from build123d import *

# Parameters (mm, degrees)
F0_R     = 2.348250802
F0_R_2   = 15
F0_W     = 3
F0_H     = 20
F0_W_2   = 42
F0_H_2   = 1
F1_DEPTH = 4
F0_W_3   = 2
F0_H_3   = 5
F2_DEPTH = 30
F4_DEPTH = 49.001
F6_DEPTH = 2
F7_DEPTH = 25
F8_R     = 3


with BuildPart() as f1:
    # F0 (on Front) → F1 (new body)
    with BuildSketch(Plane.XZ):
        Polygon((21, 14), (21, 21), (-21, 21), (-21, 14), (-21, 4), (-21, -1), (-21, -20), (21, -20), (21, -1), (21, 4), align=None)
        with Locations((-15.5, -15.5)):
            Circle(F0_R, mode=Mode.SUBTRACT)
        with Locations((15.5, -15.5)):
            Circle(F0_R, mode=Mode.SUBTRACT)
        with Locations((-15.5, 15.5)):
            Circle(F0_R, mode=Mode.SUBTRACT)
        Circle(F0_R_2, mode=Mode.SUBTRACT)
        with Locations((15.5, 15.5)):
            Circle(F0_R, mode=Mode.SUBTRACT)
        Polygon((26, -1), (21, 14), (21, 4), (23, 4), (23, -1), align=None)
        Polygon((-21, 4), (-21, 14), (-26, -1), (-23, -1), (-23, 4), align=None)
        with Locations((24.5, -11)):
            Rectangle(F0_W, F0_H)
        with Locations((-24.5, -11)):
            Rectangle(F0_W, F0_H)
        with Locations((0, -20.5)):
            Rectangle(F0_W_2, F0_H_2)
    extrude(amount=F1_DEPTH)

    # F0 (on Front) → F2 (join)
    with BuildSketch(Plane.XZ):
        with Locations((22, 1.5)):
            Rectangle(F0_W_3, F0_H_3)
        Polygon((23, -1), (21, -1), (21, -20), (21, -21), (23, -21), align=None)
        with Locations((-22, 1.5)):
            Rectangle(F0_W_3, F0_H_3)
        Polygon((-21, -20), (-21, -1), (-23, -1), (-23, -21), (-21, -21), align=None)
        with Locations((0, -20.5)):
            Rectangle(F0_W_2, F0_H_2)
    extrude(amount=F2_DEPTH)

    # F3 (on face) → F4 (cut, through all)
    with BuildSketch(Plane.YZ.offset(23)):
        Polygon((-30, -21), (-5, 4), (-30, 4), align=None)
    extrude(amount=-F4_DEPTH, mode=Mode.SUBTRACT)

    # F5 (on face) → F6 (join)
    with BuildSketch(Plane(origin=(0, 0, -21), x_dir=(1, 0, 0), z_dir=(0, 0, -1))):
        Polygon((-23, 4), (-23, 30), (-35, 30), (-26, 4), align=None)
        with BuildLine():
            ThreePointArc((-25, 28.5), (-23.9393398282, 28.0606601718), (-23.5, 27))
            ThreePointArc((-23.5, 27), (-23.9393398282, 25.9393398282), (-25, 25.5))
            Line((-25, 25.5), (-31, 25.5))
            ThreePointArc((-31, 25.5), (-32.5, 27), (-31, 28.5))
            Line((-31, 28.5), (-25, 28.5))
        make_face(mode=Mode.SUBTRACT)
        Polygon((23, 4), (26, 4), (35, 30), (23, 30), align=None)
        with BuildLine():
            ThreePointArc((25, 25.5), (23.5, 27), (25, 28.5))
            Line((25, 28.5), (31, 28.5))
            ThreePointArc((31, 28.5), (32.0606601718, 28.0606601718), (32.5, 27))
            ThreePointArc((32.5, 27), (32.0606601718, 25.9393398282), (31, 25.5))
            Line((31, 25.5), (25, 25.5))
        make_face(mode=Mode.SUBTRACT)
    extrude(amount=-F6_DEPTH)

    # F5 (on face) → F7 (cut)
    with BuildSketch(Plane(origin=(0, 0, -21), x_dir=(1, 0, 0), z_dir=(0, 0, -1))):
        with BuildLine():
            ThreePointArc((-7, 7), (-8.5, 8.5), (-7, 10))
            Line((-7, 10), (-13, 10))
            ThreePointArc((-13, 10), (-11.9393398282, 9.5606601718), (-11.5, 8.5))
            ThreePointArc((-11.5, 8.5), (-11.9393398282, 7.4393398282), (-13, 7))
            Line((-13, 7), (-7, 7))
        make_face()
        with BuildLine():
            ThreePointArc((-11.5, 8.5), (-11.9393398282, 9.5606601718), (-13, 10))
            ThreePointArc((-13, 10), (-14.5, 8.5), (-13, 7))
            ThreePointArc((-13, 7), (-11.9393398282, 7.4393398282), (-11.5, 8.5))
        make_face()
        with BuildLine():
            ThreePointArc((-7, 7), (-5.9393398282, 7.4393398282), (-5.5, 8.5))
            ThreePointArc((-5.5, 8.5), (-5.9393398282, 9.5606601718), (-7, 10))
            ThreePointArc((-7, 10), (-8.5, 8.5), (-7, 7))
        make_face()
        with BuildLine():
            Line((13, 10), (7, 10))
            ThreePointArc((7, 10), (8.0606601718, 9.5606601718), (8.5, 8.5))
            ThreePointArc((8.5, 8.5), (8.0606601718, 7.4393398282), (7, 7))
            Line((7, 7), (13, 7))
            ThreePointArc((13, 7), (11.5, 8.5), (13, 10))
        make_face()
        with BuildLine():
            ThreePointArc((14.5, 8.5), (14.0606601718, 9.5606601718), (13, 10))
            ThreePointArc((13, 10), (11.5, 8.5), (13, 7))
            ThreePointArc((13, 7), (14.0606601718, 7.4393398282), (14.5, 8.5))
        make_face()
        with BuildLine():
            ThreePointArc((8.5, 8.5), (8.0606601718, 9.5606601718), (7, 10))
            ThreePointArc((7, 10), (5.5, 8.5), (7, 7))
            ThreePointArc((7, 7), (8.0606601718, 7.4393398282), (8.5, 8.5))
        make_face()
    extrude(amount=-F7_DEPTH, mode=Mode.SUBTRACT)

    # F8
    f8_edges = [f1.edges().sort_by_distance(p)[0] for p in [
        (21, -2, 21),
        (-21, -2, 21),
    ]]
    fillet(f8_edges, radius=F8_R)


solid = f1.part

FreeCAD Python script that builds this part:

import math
import FreeCAD as App
import Part
import Sketcher
Q = App.Units.Quantity


def edges_at(feature, points):
    """Names of the edges that pass closest to the given points."""
    edges = feature.Shape.Edges
    near = lambda p: min(range(len(edges)), key=lambda i: edges[i].distToShape(Part.Vertex(*p))[0])
    return sorted({f"Edge{near(p) + 1}" for p in points})


def add_polygon(sketch, points):
    """Adds a closed chain of lines whose ends are joined by coincident constraints."""
    first, n = sketch.GeometryCount, len(points)
    for a, b in zip(points, points[1:] + points[:1]):
        sketch.addGeometry(Part.LineSegment(App.Vector(*a, 0), App.Vector(*b, 0)), False)
    for i in range(n):
        sketch.addConstraint(Sketcher.Constraint("Coincident", first + i, 2, first + (i + 1) % n, 1))

doc = App.newDocument("Part")
body = doc.addObject("PartDesign::Body", "Body")

# Sketch on XZ plane
sketch1 = body.newObject("Sketcher::SketchObject", "Sketch")
sketch1.AttachmentSupport = (doc.getObject("XZ_Plane"), [""])
sketch1.MapMode = "FlatFace"
add_polygon(sketch1, [(21, 21), (-21, 21), (-21, 14), (-26, -1), (-26, -21), (-23, -21), (-23, 4), (-21, 4), (-21, -21), (21, -21), (21, 4), (23, 4), (23, -21), (26, -21), (26, -1), (21, 14)])  # lines 0-15
sketch1.addGeometry(Part.Circle(App.Vector(-15.5, -15.5, 0), App.Vector(0, 0, 1), 2.3), False)  # 16
sketch1.addGeometry(Part.Circle(App.Vector(15.5, -15.5, 0), App.Vector(0, 0, 1), 2.3), False)  # 17
sketch1.addGeometry(Part.Circle(App.Vector(-15.5, 15.5, 0), App.Vector(0, 0, 1), 2.3), False)  # 18
sketch1.addGeometry(Part.Circle(App.Vector(0, 0, 0), App.Vector(0, 0, 1), 15), False)  # 19
sketch1.addGeometry(Part.Circle(App.Vector(15.5, 15.5, 0), App.Vector(0, 0, 1), 2.3), False)  # 20
sketch1.addConstraint(Sketcher.Constraint("Horizontal", 0))
sketch1.addConstraint(Sketcher.Constraint("Vertical", 1))
sketch1.addConstraint(Sketcher.Constraint("Vertical", 3))
sketch1.addConstraint(Sketcher.Constraint("Horizontal", 4))
sketch1.addConstraint(Sketcher.Constraint("Vertical", 5))
sketch1.addConstraint(Sketcher.Constraint("Horizontal", 6))
sketch1.addConstraint(Sketcher.Constraint("Vertical", 7))
sketch1.addConstraint(Sketcher.Constraint("Horizontal", 8))
sketch1.addConstraint(Sketcher.Constraint("Vertical", 9))
sketch1.addConstraint(Sketcher.Constraint("Horizontal", 10))
sketch1.addConstraint(Sketcher.Constraint("Vertical", 11))
sketch1.addConstraint(Sketcher.Constraint("Horizontal", 12))
sketch1.addConstraint(Sketcher.Constraint("Vertical", 13))
sketch1.addConstraint(Sketcher.Constraint("Vertical", 15))
sketch1.addConstraint(Sketcher.Constraint("Coincident", 19, 3, -1, 1))
sketch1.addConstraint(Sketcher.Constraint("Equal", 16, 17))
sketch1.addConstraint(Sketcher.Constraint("Equal", 17, 18))
sketch1.addConstraint(Sketcher.Constraint("Equal", 18, 20))
sketch1.addConstraint(Sketcher.Constraint("Symmetric", 17, 3, 18, 3, -1, 1))
sketch1.addConstraint(Sketcher.Constraint("Symmetric", 16, 3, 20, 3, -1, 1))
sketch1.addConstraint(Sketcher.Constraint("Symmetric", 0, 2, 8, 2, -1, 1))
sketch1.addConstraint(Sketcher.Constraint("Symmetric", 16, 3, 17, 3, -2))
sketch1.addConstraint(Sketcher.Constraint("Symmetric", 6, 2, 9, 2, -2))
sketch1.addConstraint(Sketcher.Constraint("Symmetric", 4, 2, 11, 2, -2))
sketch1.addConstraint(Sketcher.Constraint("Symmetric", 2, 2, 13, 2, -2))
sketch1.addConstraint(Sketcher.Constraint("Symmetric", 1, 2, 14, 2, -2))
sketch1.addConstraint(Sketcher.Constraint("Horizontal", 4, 2, 7, 2))
sketch1.addConstraint(Sketcher.Constraint("Diameter", 19, Q("30 mm")))
sketch1.addConstraint(Sketcher.Constraint("DistanceX", 0, 2, 0, 1, Q("42 mm")))
sketch1.addConstraint(Sketcher.Constraint("DistanceX", 4, 1, 4, 2, Q("3 mm")))
sketch1.addConstraint(Sketcher.Constraint("DistanceX", 6, 1, 6, 2, Q("2 mm")))
sketch1.addConstraint(Sketcher.Constraint("DistanceY", 1, 2, 1, 1, Q("7 mm")))
sketch1.addConstraint(Sketcher.Constraint("DistanceY", 3, 2, 3, 1, Q("20 mm")))
sketch1.addConstraint(Sketcher.Constraint("DistanceY", 5, 1, 5, 2, Q("25 mm")))
sketch1.addConstraint(Sketcher.Constraint("DistanceY", -1, 1, 0, 2, Q("21 mm")))
sketch1.addConstraint(Sketcher.Constraint("DistanceX", 16, 3, 17, 3, Q("31 mm")))
sketch1.addConstraint(Sketcher.Constraint("DistanceY", 16, 3, 18, 3, Q("31 mm")))
sketch1.addConstraint(Sketcher.Constraint("Diameter", 16, Q("4.696502 mm")))
pad1 = body.newObject("PartDesign::Pad", "Pad")
pad1.Profile = sketch1
pad1.Length = 4

# Sketch on XZ plane
sketch2 = body.newObject("Sketcher::SketchObject", "Sketch001")
sketch2.AttachmentSupport = (doc.getObject("XZ_Plane"), [""])
sketch2.MapMode = "FlatFace"
add_polygon(sketch2, [(21, 4), (21, -20), (-21, -20), (-21, 4), (-23, 4), (-23, -21), (23, -21), (23, 4)])  # lines 0-7
sketch2.addConstraint(Sketcher.Constraint("Vertical", 0))
sketch2.addConstraint(Sketcher.Constraint("Horizontal", 1))
sketch2.addConstraint(Sketcher.Constraint("Vertical", 2))
sketch2.addConstraint(Sketcher.Constraint("Horizontal", 3))
sketch2.addConstraint(Sketcher.Constraint("Vertical", 4))
sketch2.addConstraint(Sketcher.Constraint("Horizontal", 5))
sketch2.addConstraint(Sketcher.Constraint("Vertical", 6))
sketch2.addConstraint(Sketcher.Constraint("Horizontal", 7))
sketch2.addConstraint(Sketcher.Constraint("Symmetric", 3, 2, 6, 2, -2))
sketch2.addConstraint(Sketcher.Constraint("Equal", 3, 7))
sketch2.addConstraint(Sketcher.Constraint("DistanceX", 1, 2, 1, 1, Q("42 mm")))
sketch2.addConstraint(Sketcher.Constraint("DistanceX", 3, 2, 3, 1, Q("2 mm")))
sketch2.addConstraint(Sketcher.Constraint("DistanceY", 0, 2, 0, 1, Q("24 mm")))
sketch2.addConstraint(Sketcher.Constraint("DistanceY", 4, 2, 4, 1, Q("25 mm")))
sketch2.addConstraint(Sketcher.Constraint("DistanceY", 0, 2, -1, 1, Q("20 mm")))
pad2 = body.newObject("PartDesign::Pad", "Pad001")
pad2.Profile = sketch2
pad2.Length = 30

# Sketch on YZ plane
sketch3 = body.newObject("Sketcher::SketchObject", "Sketch002")
sketch3.AttachmentSupport = (doc.getObject("YZ_Plane"), [""])
sketch3.MapMode = "FlatFace"
sketch3.AttachmentOffset = App.Placement(App.Vector(0, 0, 23), App.Rotation())
add_polygon(sketch3, [(-30, -21), (-5, 4), (-30, 4)])  # lines 0-2
sketch3.addConstraint(Sketcher.Constraint("Horizontal", 1))
sketch3.addConstraint(Sketcher.Constraint("Vertical", 2))
sketch3.addConstraint(Sketcher.Constraint("Equal", 1, 2))
sketch3.addConstraint(Sketcher.Constraint("DistanceX", 1, 2, 1, 1, Q("25 mm")))
sketch3.addConstraint(Sketcher.Constraint("DistanceX", 0, 2, -1, 1, Q("5 mm")))
sketch3.addConstraint(Sketcher.Constraint("DistanceY", -1, 1, 0, 2, Q("4 mm")))
pocket1 = body.newObject("PartDesign::Pocket", "Pocket")
pocket1.Profile = sketch3
pocket1.Type = "ThroughAll"

# Sketch on XY plane
sketch4 = body.newObject("Sketcher::SketchObject", "Sketch003")
sketch4.AttachmentSupport = (doc.getObject("XY_Plane"), [""])
sketch4.MapMode = "FlatFace"
sketch4.AttachmentOffset = App.Placement(App.Vector(0, 0, -21), App.Rotation())
add_polygon(sketch4, [(-23, -4), (-23, -30), (-35, -30), (-26, -4)])  # lines 0-3
sketch4.addGeometry(Part.LineSegment(App.Vector(-31, -28.5, 0), App.Vector(-25, -28.5, 0)), False)  # 4
sketch4.addGeometry(Part.ArcOfCircle(Part.Circle(App.Vector(-25, -27, 0), App.Vector(0, 0, 1), 1.5), math.radians(-90), math.radians(0)), False)  # 5
sketch4.addGeometry(Part.ArcOfCircle(Part.Circle(App.Vector(-25, -27, 0), App.Vector(0, 0, 1), 1.5), math.radians(0), math.radians(90)), False)  # 6
sketch4.addGeometry(Part.LineSegment(App.Vector(-25, -25.5, 0), App.Vector(-31, -25.5, 0)), False)  # 7
sketch4.addGeometry(Part.ArcOfCircle(Part.Circle(App.Vector(-31, -27, 0), App.Vector(0, 0, 1), 1.5), math.radians(90), math.radians(270)), False)  # 8
add_polygon(sketch4, [(23, -4), (26, -4), (35, -30), (23, -30)])  # lines 9-12
sketch4.addGeometry(Part.LineSegment(App.Vector(31, -25.5, 0), App.Vector(25, -25.5, 0)), False)  # 13
sketch4.addGeometry(Part.ArcOfCircle(Part.Circle(App.Vector(25, -27, 0), App.Vector(0, 0, 1), 1.5), math.radians(90), math.radians(270)), False)  # 14
sketch4.addGeometry(Part.LineSegment(App.Vector(25, -28.5, 0), App.Vector(31, -28.5, 0)), False)  # 15
sketch4.addGeometry(Part.ArcOfCircle(Part.Circle(App.Vector(31, -27, 0), App.Vector(0, 0, 1), 1.5), math.radians(-90), math.radians(0)), False)  # 16
sketch4.addGeometry(Part.ArcOfCircle(Part.Circle(App.Vector(31, -27, 0), App.Vector(0, 0, 1), 1.5), math.radians(0), math.radians(90)), False)  # 17
sketch4.addConstraint(Sketcher.Constraint("Tangent", 4, 2, 5, 1))
sketch4.addConstraint(Sketcher.Constraint("Tangent", 5, 2, 6, 1))
sketch4.addConstraint(Sketcher.Constraint("Tangent", 6, 2, 7, 1))
sketch4.addConstraint(Sketcher.Constraint("Tangent", 7, 2, 8, 1))
sketch4.addConstraint(Sketcher.Constraint("Tangent", 8, 2, 4, 1))
sketch4.addConstraint(Sketcher.Constraint("Tangent", 13, 2, 14, 1))
sketch4.addConstraint(Sketcher.Constraint("Tangent", 14, 2, 15, 1))
sketch4.addConstraint(Sketcher.Constraint("Tangent", 15, 2, 16, 1))
sketch4.addConstraint(Sketcher.Constraint("Tangent", 16, 2, 17, 1))
sketch4.addConstraint(Sketcher.Constraint("Tangent", 17, 2, 13, 1))
sketch4.addConstraint(Sketcher.Constraint("Vertical", 0))
sketch4.addConstraint(Sketcher.Constraint("Horizontal", 1))
sketch4.addConstraint(Sketcher.Constraint("Horizontal", 3))
sketch4.addConstraint(Sketcher.Constraint("Horizontal", 4))
sketch4.addConstraint(Sketcher.Constraint("Horizontal", 7))
sketch4.addConstraint(Sketcher.Constraint("Horizontal", 9))
sketch4.addConstraint(Sketcher.Constraint("Horizontal", 11))
sketch4.addConstraint(Sketcher.Constraint("Vertical", 12))
sketch4.addConstraint(Sketcher.Constraint("Horizontal", 13))
sketch4.addConstraint(Sketcher.Constraint("Horizontal", 15))
sketch4.addConstraint(Sketcher.Constraint("Equal", 5, 6))
sketch4.addConstraint(Sketcher.Constraint("Equal", 8, 14))
sketch4.addConstraint(Sketcher.Constraint("Equal", 14, 16))
sketch4.addConstraint(Sketcher.Constraint("Symmetric", 5, 3, 14, 3, -2))
sketch4.addConstraint(Sketcher.Constraint("Symmetric", 2, 2, 9, 2, -2))
sketch4.addConstraint(Sketcher.Constraint("Symmetric", 1, 2, 10, 2, -2))
sketch4.addConstraint(Sketcher.Constraint("Horizontal", 17, 3, 5, 2))
sketch4.addConstraint(Sketcher.Constraint("Horizontal", 5, 2, 16, 2))
sketch4.addConstraint(Sketcher.Constraint("Equal", 3, 9))
sketch4.addConstraint(Sketcher.Constraint("Equal", 7, 13))
sketch4.addConstraint(Sketcher.Constraint("Radius", 5, Q("1.5 mm")))
sketch4.addConstraint(Sketcher.Constraint("DistanceX", 1, 2, 1, 1, Q("12 mm")))
sketch4.addConstraint(Sketcher.Constraint("DistanceX", 3, 1, 3, 2, Q("3 mm")))
sketch4.addConstraint(Sketcher.Constraint("DistanceX", 4, 1, 4, 2, Q("6 mm")))
sketch4.addConstraint(Sketcher.Constraint("DistanceY", 0, 2, 0, 1, Q("26 mm")))
sketch4.addConstraint(Sketcher.Constraint("DistanceX", 5, 3, -1, 1, Q("25 mm")))
sketch4.addConstraint(Sketcher.Constraint("DistanceY", 5, 3, -1, 1, Q("27 mm")))
sketch4.addConstraint(Sketcher.Constraint("DistanceX", 0, 2, -1, 1, Q("23 mm")))
sketch4.addConstraint(Sketcher.Constraint("DistanceY", 0, 2, -1, 1, Q("30 mm")))
pad3 = body.newObject("PartDesign::Pad", "Pad002")
pad3.Profile = sketch4
pad3.Length = 2

# Sketch on XY plane
sketch5 = body.newObject("Sketcher::SketchObject", "Sketch004")
sketch5.AttachmentSupport = (doc.getObject("XY_Plane"), [""])
sketch5.MapMode = "FlatFace"
sketch5.AttachmentOffset = App.Placement(App.Vector(0, 0, -21), App.Rotation())
sketch5.addGeometry(Part.LineSegment(App.Vector(-7, -10, 0), App.Vector(-13, -10, 0)), False)
sketch5.addGeometry(Part.ArcOfCircle(Part.Circle(App.Vector(-13, -8.5, 0), App.Vector(0, 0, 1), 1.5), math.radians(90), math.radians(270)), False)
sketch5.addGeometry(Part.LineSegment(App.Vector(-13, -7, 0), App.Vector(-7, -7, 0)), False)
sketch5.addGeometry(Part.ArcOfCircle(Part.Circle(App.Vector(-7, -8.5, 0), App.Vector(0, 0, 1), 1.5), math.radians(0), math.radians(90)), False)
sketch5.addGeometry(Part.ArcOfCircle(Part.Circle(App.Vector(-7, -8.5, 0), App.Vector(0, 0, 1), 1.5), math.radians(-90), math.radians(0)), False)
sketch5.addGeometry(Part.LineSegment(App.Vector(13, -10, 0), App.Vector(7, -10, 0)), False)
sketch5.addGeometry(Part.ArcOfCircle(Part.Circle(App.Vector(7, -8.5, 0), App.Vector(0, 0, 1), 1.5), math.radians(90), math.radians(270)), False)
sketch5.addGeometry(Part.LineSegment(App.Vector(7, -7, 0), App.Vector(13, -7, 0)), False)
sketch5.addGeometry(Part.ArcOfCircle(Part.Circle(App.Vector(13, -8.5, 0), App.Vector(0, 0, 1), 1.5), math.radians(0), math.radians(90)), False)
sketch5.addGeometry(Part.ArcOfCircle(Part.Circle(App.Vector(13, -8.5, 0), App.Vector(0, 0, 1), 1.5), math.radians(-90), math.radians(0)), False)
sketch5.addConstraint(Sketcher.Constraint("Tangent", 0, 2, 1, 2))
sketch5.addConstraint(Sketcher.Constraint("Tangent", 1, 1, 2, 1))
sketch5.addConstraint(Sketcher.Constraint("Tangent", 2, 2, 3, 2))
sketch5.addConstraint(Sketcher.Constraint("Tangent", 3, 1, 4, 2))
sketch5.addConstraint(Sketcher.Constraint("Tangent", 4, 1, 0, 1))
sketch5.addConstraint(Sketcher.Constraint("Tangent", 5, 2, 6, 2))
sketch5.addConstraint(Sketcher.Constraint("Tangent", 6, 1, 7, 1))
sketch5.addConstraint(Sketcher.Constraint("Tangent", 7, 2, 8, 2))
sketch5.addConstraint(Sketcher.Constraint("Tangent", 8, 1, 9, 2))
sketch5.addConstraint(Sketcher.Constraint("Tangent", 9, 1, 5, 1))
sketch5.addConstraint(Sketcher.Constraint("Horizontal", 0))
sketch5.addConstraint(Sketcher.Constraint("Horizontal", 2))
sketch5.addConstraint(Sketcher.Constraint("Horizontal", 5))
sketch5.addConstraint(Sketcher.Constraint("Horizontal", 7))
sketch5.addConstraint(Sketcher.Constraint("Equal", 1, 3))
sketch5.addConstraint(Sketcher.Constraint("Equal", 4, 6))
sketch5.addConstraint(Sketcher.Constraint("Equal", 6, 8))
sketch5.addConstraint(Sketcher.Constraint("Symmetric", 3, 3, 6, 3, -2))
sketch5.addConstraint(Sketcher.Constraint("Horizontal", 9, 3, 3, 1))
sketch5.addConstraint(Sketcher.Constraint("Horizontal", 3, 1, 8, 1))
sketch5.addConstraint(Sketcher.Constraint("Equal", 2, 5))
sketch5.addConstraint(Sketcher.Constraint("Radius", 1, Q("1.5 mm")))
sketch5.addConstraint(Sketcher.Constraint("DistanceX", 0, 2, 0, 1, Q("6 mm")))
sketch5.addConstraint(Sketcher.Constraint("DistanceX", 1, 3, -1, 1, Q("13 mm")))
sketch5.addConstraint(Sketcher.Constraint("DistanceY", 0, 2, -1, 1, Q("10 mm")))
pocket2 = body.newObject("PartDesign::Pocket", "Pocket001")
pocket2.Profile = sketch5
pocket2.Length = 25
pocket2.Reversed = True
doc.recompute()

fillet = body.newObject("PartDesign::Fillet", "Fillet")
fillet.Base = (pocket2, edges_at(pocket2, [(21, -2, 21), (-21, -2, 21)]))
fillet.Radius = 3

doc.recompute()
